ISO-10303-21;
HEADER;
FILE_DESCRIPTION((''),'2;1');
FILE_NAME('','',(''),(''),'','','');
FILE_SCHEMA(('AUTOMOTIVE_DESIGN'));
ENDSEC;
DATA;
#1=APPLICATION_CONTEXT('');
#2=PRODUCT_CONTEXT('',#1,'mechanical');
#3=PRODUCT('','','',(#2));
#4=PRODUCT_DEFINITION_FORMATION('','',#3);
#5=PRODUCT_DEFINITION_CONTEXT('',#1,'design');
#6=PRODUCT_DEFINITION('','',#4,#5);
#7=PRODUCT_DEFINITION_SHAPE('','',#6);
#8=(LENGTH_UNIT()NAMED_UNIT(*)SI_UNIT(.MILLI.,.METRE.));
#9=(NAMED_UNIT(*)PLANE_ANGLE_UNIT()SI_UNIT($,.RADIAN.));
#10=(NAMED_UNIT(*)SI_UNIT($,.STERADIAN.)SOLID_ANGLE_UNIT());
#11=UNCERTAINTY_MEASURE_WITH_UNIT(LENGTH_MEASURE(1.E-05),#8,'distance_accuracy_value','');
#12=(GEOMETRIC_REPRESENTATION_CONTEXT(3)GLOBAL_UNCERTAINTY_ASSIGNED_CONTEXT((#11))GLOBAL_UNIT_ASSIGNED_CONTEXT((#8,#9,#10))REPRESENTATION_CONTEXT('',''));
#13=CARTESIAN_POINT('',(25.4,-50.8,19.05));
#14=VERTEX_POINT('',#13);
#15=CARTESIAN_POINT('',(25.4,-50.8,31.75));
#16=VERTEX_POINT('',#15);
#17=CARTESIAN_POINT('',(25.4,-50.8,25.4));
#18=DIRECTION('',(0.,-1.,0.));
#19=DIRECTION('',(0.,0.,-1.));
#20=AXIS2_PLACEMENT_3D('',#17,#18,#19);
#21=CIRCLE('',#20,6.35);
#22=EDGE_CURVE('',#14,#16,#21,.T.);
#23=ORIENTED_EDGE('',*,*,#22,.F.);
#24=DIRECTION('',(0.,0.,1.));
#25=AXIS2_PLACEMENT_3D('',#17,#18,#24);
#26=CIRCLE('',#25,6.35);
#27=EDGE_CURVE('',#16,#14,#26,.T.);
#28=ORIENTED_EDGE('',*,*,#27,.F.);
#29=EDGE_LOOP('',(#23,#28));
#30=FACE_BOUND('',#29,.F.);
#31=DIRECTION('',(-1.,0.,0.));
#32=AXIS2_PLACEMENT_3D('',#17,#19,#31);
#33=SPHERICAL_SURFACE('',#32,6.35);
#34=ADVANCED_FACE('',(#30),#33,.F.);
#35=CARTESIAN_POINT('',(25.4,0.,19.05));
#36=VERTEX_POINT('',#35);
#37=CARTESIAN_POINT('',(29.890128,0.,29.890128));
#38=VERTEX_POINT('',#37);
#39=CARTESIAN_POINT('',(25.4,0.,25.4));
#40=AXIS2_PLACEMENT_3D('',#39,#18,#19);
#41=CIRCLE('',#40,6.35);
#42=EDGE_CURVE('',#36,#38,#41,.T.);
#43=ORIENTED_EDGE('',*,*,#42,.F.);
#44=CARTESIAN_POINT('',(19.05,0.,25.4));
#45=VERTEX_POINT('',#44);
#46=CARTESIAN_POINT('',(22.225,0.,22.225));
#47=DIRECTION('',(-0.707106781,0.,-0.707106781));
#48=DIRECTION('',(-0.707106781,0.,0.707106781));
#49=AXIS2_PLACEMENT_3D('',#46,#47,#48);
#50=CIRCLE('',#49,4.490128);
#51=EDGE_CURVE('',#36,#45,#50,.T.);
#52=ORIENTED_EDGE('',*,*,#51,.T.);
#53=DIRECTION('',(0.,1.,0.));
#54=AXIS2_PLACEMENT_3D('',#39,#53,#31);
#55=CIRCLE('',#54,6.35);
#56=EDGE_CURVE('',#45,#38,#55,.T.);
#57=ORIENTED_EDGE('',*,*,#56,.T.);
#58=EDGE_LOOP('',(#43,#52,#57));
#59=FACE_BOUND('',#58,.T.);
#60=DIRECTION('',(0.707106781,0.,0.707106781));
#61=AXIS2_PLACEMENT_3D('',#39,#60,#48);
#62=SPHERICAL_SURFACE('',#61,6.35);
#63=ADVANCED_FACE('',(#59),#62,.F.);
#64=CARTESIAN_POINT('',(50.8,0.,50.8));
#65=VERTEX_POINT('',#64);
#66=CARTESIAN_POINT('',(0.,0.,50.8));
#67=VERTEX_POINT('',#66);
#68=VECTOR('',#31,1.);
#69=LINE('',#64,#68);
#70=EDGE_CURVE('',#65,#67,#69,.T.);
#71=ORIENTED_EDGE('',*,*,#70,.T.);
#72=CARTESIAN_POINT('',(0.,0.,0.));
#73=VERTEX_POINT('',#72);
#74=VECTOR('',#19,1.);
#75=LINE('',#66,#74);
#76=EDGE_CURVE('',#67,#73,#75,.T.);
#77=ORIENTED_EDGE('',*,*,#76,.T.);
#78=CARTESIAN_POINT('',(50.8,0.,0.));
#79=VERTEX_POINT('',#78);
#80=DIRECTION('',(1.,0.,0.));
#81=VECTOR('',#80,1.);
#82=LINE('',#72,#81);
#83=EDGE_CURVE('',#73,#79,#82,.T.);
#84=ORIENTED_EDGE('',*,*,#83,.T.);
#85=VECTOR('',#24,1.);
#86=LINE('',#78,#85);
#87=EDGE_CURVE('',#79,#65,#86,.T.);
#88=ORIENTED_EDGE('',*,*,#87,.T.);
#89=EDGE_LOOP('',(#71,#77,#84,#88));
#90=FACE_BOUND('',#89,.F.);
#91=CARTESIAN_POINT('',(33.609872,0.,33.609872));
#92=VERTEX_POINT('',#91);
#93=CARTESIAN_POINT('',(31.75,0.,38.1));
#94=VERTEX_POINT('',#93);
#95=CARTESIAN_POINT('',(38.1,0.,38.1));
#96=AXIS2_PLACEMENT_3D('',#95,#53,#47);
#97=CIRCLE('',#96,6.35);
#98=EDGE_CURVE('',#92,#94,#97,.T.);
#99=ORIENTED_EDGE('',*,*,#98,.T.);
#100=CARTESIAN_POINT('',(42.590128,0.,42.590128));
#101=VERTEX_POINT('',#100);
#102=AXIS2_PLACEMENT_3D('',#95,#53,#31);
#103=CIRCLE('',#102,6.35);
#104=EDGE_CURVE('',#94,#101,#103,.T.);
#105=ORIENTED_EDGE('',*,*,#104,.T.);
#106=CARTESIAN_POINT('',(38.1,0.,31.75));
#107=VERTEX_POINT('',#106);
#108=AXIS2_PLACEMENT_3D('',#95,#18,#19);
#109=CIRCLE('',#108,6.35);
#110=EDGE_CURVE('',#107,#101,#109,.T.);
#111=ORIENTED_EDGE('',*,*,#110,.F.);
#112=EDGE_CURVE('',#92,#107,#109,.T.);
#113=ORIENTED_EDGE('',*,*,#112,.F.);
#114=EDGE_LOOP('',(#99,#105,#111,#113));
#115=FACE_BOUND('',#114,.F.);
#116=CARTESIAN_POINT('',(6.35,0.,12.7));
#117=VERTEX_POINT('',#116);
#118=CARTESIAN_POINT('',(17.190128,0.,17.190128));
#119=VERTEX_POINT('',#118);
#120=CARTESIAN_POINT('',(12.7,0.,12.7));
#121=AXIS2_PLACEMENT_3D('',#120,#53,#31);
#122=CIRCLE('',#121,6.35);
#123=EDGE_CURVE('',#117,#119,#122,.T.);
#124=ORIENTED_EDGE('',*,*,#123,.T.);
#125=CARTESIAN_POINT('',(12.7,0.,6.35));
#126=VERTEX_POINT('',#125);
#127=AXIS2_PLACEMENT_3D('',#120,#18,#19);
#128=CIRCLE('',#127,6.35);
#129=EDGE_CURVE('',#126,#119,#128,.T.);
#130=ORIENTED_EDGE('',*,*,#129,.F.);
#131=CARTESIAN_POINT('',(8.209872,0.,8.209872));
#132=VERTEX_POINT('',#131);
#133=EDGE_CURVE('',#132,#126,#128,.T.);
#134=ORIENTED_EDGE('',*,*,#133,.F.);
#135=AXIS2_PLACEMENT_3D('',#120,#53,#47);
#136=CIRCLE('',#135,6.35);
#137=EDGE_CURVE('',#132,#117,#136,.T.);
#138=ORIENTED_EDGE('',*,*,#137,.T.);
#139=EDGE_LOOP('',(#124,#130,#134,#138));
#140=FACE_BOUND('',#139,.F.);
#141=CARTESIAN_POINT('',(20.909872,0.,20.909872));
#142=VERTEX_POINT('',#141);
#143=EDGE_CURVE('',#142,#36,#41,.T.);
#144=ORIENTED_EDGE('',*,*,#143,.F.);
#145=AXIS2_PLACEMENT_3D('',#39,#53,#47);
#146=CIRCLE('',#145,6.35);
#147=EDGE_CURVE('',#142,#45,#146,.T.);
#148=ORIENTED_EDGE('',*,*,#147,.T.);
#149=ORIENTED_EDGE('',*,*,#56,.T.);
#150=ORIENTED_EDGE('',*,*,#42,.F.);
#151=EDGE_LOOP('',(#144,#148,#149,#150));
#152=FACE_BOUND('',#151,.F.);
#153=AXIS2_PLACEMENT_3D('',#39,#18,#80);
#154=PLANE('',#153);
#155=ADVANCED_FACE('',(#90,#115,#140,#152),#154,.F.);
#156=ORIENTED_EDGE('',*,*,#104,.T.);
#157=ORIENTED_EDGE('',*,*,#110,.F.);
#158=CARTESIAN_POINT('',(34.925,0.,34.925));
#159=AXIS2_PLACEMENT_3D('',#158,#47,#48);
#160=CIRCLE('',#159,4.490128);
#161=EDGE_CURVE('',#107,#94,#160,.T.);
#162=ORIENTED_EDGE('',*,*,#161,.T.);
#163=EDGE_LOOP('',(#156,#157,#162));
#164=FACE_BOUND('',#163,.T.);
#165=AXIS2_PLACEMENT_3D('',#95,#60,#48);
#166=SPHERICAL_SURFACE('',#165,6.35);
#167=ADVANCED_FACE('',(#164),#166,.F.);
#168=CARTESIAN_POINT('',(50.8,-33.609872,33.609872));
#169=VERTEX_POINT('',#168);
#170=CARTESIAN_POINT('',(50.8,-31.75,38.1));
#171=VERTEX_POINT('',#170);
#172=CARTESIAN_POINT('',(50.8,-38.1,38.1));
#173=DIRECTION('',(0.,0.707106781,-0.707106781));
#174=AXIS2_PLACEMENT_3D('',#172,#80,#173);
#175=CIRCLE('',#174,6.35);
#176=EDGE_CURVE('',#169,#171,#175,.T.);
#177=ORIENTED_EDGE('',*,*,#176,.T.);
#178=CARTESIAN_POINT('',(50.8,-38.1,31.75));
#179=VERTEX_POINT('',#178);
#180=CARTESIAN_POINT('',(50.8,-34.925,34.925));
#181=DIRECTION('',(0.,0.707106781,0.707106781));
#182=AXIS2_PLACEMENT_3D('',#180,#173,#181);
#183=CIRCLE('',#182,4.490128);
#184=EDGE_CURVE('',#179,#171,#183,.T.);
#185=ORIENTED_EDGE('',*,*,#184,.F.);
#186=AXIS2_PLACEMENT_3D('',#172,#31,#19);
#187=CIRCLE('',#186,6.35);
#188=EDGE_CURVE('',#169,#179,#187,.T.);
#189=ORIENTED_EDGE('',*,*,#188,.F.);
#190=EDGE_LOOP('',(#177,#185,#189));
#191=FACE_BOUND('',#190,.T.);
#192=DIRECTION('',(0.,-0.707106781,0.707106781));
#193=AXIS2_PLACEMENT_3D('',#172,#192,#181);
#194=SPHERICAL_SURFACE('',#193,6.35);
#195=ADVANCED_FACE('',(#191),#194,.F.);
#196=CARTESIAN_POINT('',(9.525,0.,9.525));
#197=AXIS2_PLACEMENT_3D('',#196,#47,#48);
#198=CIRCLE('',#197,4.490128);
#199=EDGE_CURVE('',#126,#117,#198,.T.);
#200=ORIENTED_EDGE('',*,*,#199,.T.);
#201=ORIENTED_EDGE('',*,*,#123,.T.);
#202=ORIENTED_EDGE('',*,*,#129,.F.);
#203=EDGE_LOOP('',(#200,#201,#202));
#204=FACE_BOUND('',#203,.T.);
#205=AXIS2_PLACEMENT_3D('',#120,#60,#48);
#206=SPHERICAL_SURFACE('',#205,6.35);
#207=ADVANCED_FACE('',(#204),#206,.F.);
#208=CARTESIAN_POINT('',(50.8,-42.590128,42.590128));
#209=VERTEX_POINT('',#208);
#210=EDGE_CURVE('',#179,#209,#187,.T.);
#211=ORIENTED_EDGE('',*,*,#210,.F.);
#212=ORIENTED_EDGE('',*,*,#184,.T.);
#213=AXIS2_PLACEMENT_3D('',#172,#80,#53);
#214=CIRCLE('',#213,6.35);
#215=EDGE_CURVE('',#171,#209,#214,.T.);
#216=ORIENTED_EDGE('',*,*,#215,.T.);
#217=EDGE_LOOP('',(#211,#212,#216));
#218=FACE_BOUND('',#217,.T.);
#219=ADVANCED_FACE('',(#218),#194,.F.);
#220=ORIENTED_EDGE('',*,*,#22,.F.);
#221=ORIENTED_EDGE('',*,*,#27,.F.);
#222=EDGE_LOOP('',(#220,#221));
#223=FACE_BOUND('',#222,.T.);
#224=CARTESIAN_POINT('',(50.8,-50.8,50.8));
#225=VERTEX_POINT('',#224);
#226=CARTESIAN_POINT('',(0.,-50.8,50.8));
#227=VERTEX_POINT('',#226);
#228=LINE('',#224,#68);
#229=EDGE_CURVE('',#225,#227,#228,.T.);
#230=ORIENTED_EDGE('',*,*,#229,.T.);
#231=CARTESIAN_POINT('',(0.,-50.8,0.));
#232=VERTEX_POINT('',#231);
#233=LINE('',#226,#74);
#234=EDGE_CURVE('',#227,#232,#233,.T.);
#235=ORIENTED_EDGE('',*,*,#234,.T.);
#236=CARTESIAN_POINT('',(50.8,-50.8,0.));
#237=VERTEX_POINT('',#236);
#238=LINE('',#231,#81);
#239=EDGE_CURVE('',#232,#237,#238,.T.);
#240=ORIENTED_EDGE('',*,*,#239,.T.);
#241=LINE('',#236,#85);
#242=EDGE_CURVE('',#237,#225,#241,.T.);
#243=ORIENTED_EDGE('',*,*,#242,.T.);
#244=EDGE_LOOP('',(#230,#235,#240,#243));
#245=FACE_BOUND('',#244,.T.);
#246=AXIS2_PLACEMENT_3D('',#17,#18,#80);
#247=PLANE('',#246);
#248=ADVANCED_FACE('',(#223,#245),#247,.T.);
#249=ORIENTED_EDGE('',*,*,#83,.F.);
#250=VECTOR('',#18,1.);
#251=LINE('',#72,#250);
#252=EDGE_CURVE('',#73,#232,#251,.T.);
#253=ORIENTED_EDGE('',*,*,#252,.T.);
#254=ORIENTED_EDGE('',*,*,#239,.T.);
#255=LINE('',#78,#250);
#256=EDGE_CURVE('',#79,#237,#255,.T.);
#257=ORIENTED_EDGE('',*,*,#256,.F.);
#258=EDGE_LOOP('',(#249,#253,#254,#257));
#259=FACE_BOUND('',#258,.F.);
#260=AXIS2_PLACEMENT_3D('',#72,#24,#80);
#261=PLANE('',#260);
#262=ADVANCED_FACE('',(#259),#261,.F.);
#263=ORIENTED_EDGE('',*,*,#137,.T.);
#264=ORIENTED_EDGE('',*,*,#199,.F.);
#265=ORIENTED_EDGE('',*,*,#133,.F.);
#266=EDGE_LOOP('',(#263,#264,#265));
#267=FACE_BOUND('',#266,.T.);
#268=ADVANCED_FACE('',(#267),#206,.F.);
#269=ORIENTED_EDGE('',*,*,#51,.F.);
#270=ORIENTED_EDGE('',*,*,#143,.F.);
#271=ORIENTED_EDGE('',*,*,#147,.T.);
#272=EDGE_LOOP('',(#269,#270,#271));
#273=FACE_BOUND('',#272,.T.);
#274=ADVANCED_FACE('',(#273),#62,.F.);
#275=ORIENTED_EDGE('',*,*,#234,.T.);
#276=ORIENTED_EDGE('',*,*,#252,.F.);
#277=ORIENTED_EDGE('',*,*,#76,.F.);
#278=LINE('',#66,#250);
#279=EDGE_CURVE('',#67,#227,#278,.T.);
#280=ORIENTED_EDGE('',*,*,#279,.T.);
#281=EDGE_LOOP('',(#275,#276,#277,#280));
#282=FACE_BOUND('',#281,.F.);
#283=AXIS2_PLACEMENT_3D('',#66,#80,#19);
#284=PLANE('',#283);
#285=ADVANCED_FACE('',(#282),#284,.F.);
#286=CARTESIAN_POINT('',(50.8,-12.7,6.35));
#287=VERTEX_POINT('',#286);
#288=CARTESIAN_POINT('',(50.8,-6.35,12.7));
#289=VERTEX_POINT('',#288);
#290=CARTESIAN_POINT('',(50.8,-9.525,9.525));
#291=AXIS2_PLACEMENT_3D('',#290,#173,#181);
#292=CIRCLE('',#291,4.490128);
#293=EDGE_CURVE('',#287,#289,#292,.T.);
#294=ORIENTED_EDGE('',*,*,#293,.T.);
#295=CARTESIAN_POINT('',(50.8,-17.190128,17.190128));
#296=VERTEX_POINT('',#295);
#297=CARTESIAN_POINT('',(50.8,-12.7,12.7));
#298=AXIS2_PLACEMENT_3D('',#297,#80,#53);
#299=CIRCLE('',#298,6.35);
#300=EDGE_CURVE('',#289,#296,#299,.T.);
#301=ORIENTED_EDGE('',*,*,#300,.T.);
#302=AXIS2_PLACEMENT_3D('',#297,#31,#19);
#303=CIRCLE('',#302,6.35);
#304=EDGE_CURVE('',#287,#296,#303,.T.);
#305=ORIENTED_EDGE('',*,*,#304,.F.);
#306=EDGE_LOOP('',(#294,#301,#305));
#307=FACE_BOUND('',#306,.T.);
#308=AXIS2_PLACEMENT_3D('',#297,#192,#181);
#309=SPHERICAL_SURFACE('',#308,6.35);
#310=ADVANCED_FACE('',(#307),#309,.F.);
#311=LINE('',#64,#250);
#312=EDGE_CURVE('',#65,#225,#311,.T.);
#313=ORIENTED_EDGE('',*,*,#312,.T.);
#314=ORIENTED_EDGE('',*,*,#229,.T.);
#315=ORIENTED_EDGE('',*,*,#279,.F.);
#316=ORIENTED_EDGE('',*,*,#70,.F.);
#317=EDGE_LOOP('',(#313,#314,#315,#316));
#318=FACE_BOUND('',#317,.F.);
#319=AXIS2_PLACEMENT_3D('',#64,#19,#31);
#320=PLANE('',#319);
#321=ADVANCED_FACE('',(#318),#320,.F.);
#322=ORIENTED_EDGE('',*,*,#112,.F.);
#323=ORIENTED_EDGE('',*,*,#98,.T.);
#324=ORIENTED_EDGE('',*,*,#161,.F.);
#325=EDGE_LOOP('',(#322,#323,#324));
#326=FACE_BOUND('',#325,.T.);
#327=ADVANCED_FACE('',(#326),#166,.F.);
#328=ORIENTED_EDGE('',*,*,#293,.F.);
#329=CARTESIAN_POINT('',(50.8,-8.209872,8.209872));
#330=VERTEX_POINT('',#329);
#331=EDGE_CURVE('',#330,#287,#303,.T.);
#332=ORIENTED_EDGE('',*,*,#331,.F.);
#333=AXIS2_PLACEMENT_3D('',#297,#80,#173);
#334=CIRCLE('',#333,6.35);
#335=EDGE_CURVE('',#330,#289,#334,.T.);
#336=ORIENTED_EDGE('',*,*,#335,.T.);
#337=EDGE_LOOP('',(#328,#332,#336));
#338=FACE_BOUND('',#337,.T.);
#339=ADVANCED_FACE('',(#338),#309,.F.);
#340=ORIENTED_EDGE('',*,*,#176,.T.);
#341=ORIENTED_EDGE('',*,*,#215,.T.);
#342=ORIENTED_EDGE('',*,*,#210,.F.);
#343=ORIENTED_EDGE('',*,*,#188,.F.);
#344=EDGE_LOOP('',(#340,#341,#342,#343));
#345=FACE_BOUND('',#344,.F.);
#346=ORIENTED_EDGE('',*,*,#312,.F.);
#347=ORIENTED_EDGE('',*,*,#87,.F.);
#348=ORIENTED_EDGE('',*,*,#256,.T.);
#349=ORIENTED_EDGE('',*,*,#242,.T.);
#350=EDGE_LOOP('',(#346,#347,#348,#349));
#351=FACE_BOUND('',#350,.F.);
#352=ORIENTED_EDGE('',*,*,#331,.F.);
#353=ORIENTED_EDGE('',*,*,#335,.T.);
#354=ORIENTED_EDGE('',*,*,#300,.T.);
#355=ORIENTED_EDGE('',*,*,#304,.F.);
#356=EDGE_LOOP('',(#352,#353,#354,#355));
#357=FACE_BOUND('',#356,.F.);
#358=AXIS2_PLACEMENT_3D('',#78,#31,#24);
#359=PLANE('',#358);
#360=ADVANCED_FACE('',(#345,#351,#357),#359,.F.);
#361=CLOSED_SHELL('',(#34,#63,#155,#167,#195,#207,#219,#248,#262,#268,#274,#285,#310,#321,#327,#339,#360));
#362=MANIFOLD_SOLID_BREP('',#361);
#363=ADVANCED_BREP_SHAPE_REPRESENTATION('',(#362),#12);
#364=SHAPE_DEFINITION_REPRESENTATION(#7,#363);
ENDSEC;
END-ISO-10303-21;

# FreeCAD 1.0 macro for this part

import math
import FreeCAD as App
import Part
import Sketcher
from FreeCAD import Vector
Q = App.Units.Quantity


def add_polygon(sketch, points):
    """Adds a closed chain of lines whose ends are joined by coincident constraints."""
    first, n = sketch.GeometryCount, len(points)
    for a, b in zip(points, points[1:] + points[:1]):
        sketch.addGeometry(Part.LineSegment(App.Vector(*a, 0), App.Vector(*b, 0)), False)
    for i in range(n):
        sketch.addConstraint(Sketcher.Constraint("Coincident", first + i, 2, first + (i + 1) % n, 1))

doc = App.newDocument("Part")
body = doc.addObject("PartDesign::Body", "Body")

# Sketch on XZ plane
sketch1 = body.newObject("Sketcher::SketchObject", "Sketch")
sketch1.AttachmentSupport = (doc.getObject("XZ_Plane"), [""])
sketch1.MapMode = "FlatFace"
add_polygon(sketch1, [(0, 50.8), (0, 0), (50.8, 0), (50.8, 50.8)])  # lines 0-3
sketch1.addConstraint(Sketcher.Constraint("Vertical", 0))
sketch1.addConstraint(Sketcher.Constraint("Horizontal", 1))
sketch1.addConstraint(Sketcher.Constraint("Vertical", 2))
sketch1.addConstraint(Sketcher.Constraint("Horizontal", 3))
sketch1.addConstraint(Sketcher.Constraint("Coincident", 0, 2, -1, 1))
sketch1.addConstraint(Sketcher.Constraint("Equal", 3, 0))
sketch1.addConstraint(Sketcher.Constraint("DistanceX", 1, 1, 1, 2, Q("2 in")))
pad1 = body.newObject("PartDesign::Pad", "Pad")
pad1.Profile = sketch1
pad1.Length = Q("2 in")

# Sketch on YZ plane
sketch2 = body.newObject("Sketcher::SketchObject", "Sketch001")
sketch2.AttachmentSupport = (doc.getObject("YZ_Plane"), [""])
sketch2.MapMode = "FlatFace"
sketch2.AttachmentOffset = App.Placement(Vector(0, 0, 2 * 25.4), App.Rotation())
sketch2.addGeometry(Part.ArcOfCircle(Part.Circle(Vector(-38.1, 38.1, 0), Vector(0, 0, 1), 6.35), math.radians(0), math.radians(135)), False)
sketch2.addGeometry(Part.LineSegment(Vector(-42.590128, 42.590128, 0), Vector(-33.609872, 33.609872, 0)), False)
sketch2.addGeometry(Part.ArcOfCircle(Part.Circle(Vector(-38.1, 38.1, 0), Vector(0, 0, 1), 6.35), math.radians(-45), math.radians(0)), False)
sketch2.addGeometry(Part.ArcOfCircle(Part.Circle(Vector(-12.7, 12.7, 0), Vector(0, 0, 1), 6.35), math.radians(0), math.radians(135)), False)
sketch2.addGeometry(Part.LineSegment(Vector(-17.190128, 17.190128, 0), Vector(-8.209872, 8.209872, 0)), False)
sketch2.addGeometry(Part.ArcOfCircle(Part.Circle(Vector(-12.7, 12.7, 0), Vector(0, 0, 1), 6.35), math.radians(-45), math.radians(0)), False)
sketch2.addGeometry(Part.LineSegment(Vector(-42.590128, 42.590128, 0), Vector(-8.209872, 8.209872, 0)), True)  # axis
sketch2.addConstraint(Sketcher.Constraint("Coincident", 0, 2, 1, 1))
sketch2.addConstraint(Sketcher.Constraint("Coincident", 1, 2, 2, 1))
sketch2.addConstraint(Sketcher.Constraint("Tangent", 2, 2, 0, 1))
sketch2.addConstraint(Sketcher.Constraint("Coincident", 3, 2, 4, 1))
sketch2.addConstraint(Sketcher.Constraint("Coincident", 4, 2, 5, 1))
sketch2.addConstraint(Sketcher.Constraint("Tangent", 5, 2, 3, 1))
sketch2.addConstraint(Sketcher.Constraint("Coincident", 6, 1, 0, 2))
sketch2.addConstraint(Sketcher.Constraint("Coincident", 6, 2, 4, 2))
sketch2.addConstraint(Sketcher.Constraint("Equal", 0, 2))
sketch2.addConstraint(Sketcher.Constraint("Equal", 2, 3))
sketch2.addConstraint(Sketcher.Constraint("Equal", 3, 5))
sketch2.addConstraint(Sketcher.Constraint("Parallel", 1, 4))
sketch2.addConstraint(Sketcher.Constraint("Parallel", 4, 6))
sketch2.addConstraint(Sketcher.Constraint("Horizontal", 0, 3, 2, 2))
sketch2.addConstraint(Sketcher.Constraint("Horizontal", 3, 3, 5, 2))
sketch2.addConstraint(Sketcher.Constraint("Radius", 0, Q("0.25 in")))
sketch2.addConstraint(Sketcher.Constraint("Angle", 1, Q("-45 deg")))
sketch2.addConstraint(Sketcher.Constraint("DistanceX", 0, 3, 3, 3, Q("1 in")))
sketch2.addConstraint(Sketcher.Constraint("DistanceY", 3, 3, 0, 3, Q("1 in")))
sketch2.addConstraint(Sketcher.Constraint("DistanceX", 0, 3, -1, 1, Q("1.5 in")))
sketch2.addConstraint(Sketcher.Constraint("DistanceY", -1, 1, 0, 3, Q("1.5 in")))
sketch2.addConstraint(Sketcher.Constraint("DistanceX", 0, 2, -1, 1, Q("42.590128 mm")))
groove = body.newObject("PartDesign::Groove", "Groove")
groove.Profile = sketch2
groove.ReferenceAxis = (sketch2, ["Axis0"])
groove.Angle = 360

# Sketch on XZ plane
sketch3 = body.newObject("Sketcher::SketchObject", "Sketch002")
sketch3.AttachmentSupport = (doc.getObject("XZ_Plane"), [""])
sketch3.MapMode = "FlatFace"
sketch3.AttachmentOffset = App.Placement(Vector(0, 0, 2 * 25.4), App.Rotation())
sketch3.addGeometry(Part.LineSegment(Vector(25.4, 19.05, 0), Vector(25.4, 31.75, 0)), False)
sketch3.addGeometry(Part.ArcOfCircle(Part.Circle(Vector(25.4, 25.4, 0), Vector(0, 0, 1), 6.35), math.radians(90), math.radians(270)), False)
sketch3.addGeometry(Part.LineSegment(Vector(25.4, 31.75, 0), Vector(25.4, 19.05, 0)), True)  # axis
sketch3.addConstraint(Sketcher.Constraint("Coincident", 0, 1, 1, 2))
sketch3.addConstraint(Sketcher.Constraint("Coincident", 1, 1, 0, 2))
sketch3.addConstraint(Sketcher.Constraint("Vertical", 0))
sketch3.addConstraint(Sketcher.Constraint("Vertical", 2))
sketch3.addConstraint(Sketcher.Constraint("Coincident", 2, 1, 1, 1))
sketch3.addConstraint(Sketcher.Constraint("Vertical", 1, 3, 0, 1))
sketch3.addConstraint(Sketcher.Constraint("Equal", 0, 2))
sketch3.addConstraint(Sketcher.Constraint("Radius", 1, Q("0.25 in")))
sketch3.addConstraint(Sketcher.Constraint("DistanceX", -1, 1, 1, 3, Q("1 in")))
sketch3.addConstraint(Sketcher.Constraint("DistanceY", -1, 1, 1, 3, Q("1 in")))
groove2 = body.newObject("PartDesign::Groove", "Groove001")
groove2.Profile = sketch3
groove2.ReferenceAxis = (sketch3, ["Axis0"])
groove2.Angle = 360

# Sketch on XZ plane
sketch4 = body.newObject("Sketcher::SketchObject", "Sketch003")
sketch4.AttachmentSupport = (doc.getObject("XZ_Plane"), [""])
sketch4.MapMode = "FlatFace"
sketch4.addGeometry(Part.LineSegment(Vector(17.190128, 17.190128, 0), Vector(8.209872, 8.209872, 0)), False)
sketch4.addGeometry(Part.ArcOfCircle(Part.Circle(Vector(12.7, 12.7, 0), Vector(0, 0, 1), 6.35), math.radians(180), math.radians(225)), False)
sketch4.addGeometry(Part.ArcOfCircle(Part.Circle(Vector(12.7, 12.7, 0), Vector(0, 0, 1), 6.35), math.radians(45), math.radians(180)), False)
sketch4.addGeometry(Part.ArcOfCircle(Part.Circle(Vector(25.4, 25.4, 0), Vector(0, 0, 1), 6.35), math.radians(45), math.radians(180)), False)
sketch4.addGeometry(Part.LineSegment(Vector(29.890128, 29.890128, 0), Vector(20.909872, 20.909872, 0)), False)
sketch4.addGeometry(Part.ArcOfCircle(Part.Circle(Vector(25.4, 25.4, 0), Vector(0, 0, 1), 6.35), math.radians(180), math.radians(225)), False)
sketch4.addGeometry(Part.ArcOfCircle(Part.Circle(Vector(38.1, 38.1, 0), Vector(0, 0, 1), 6.35), math.radians(45), math.radians(180)), False)
sketch4.addGeometry(Part.LineSegment(Vector(42.590128, 42.590128, 0), Vector(33.609872, 33.609872, 0)), False)
sketch4.addGeometry(Part.ArcOfCircle(Part.Circle(Vector(38.1, 38.1, 0), Vector(0, 0, 1), 6.35), math.radians(180), math.radians(225)), False)
sketch4.addGeometry(Part.LineSegment(Vector(42.590128, 42.590128, 0), Vector(8.209872, 8.209872, 0)), True)  # axis
sketch4.addConstraint(Sketcher.Constraint("Coincident", 0, 2, 1, 2))
sketch4.addConstraint(Sketcher.Constraint("Tangent", 1, 1, 2, 2))
sketch4.addConstraint(Sketcher.Constraint("Coincident", 2, 1, 0, 1))
sketch4.addConstraint(Sketcher.Constraint("Coincident", 3, 1, 4, 1))
sketch4.addConstraint(Sketcher.Constraint("Coincident", 4, 2, 5, 2))
sketch4.addConstraint(Sketcher.Constraint("Tangent", 5, 1, 3, 2))
sketch4.addConstraint(Sketcher.Constraint("Coincident", 6, 1, 7, 1))
sketch4.addConstraint(Sketcher.Constraint("Coincident", 7, 2, 8, 2))
sketch4.addConstraint(Sketcher.Constraint("Tangent", 8, 1, 6, 2))
sketch4.addConstraint(Sketcher.Constraint("Coincident", 9, 1, 6, 1))
sketch4.addConstraint(Sketcher.Constraint("Coincident", 9, 2, 0, 2))
sketch4.addConstraint(Sketcher.Constraint("Equal", 1, 2))
sketch4.addConstraint(Sketcher.Constraint("Equal", 2, 3))
sketch4.addConstraint(Sketcher.Constraint("Equal", 3, 5))
sketch4.addConstraint(Sketcher.Constraint("Equal", 5, 6))
sketch4.addConstraint(Sketcher.Constraint("Equal", 6, 8))
sketch4.addConstraint(Sketcher.Constraint("Parallel", 0, 4))
sketch4.addConstraint(Sketcher.Constraint("Parallel", 4, 7))
sketch4.addConstraint(Sketcher.Constraint("Parallel", 7, 9))
sketch4.addConstraint(Sketcher.Constraint("Horizontal", 2, 3, 1, 1))
sketch4.addConstraint(Sketcher.Constraint("Horizontal", 3, 3, 5, 1))
sketch4.addConstraint(Sketcher.Constraint("Horizontal", 6, 3, 8, 1))
sketch4.addConstraint(Sketcher.Constraint("Radius", 1, Q("0.25 in")))
sketch4.addConstraint(Sketcher.Constraint("DistanceX", -1, 1, 3, 3, Q("1 in")))
sketch4.addConstraint(Sketcher.Constraint("DistanceY", -1, 1, 3, 3, Q("1 in")))
sketch4.addConstraint(Sketcher.Constraint("Angle", 0, Q("-135 deg")))
sketch4.addConstraint(Sketcher.Constraint("DistanceX", 1, 3, 6, 3, Q("1 in")))
sketch4.addConstraint(Sketcher.Constraint("DistanceY", 1, 3, 6, 3, Q("1 in")))
sketch4.addConstraint(Sketcher.Constraint("DistanceX", -1, 1, 1, 3, Q("0.5 in")))
sketch4.addConstraint(Sketcher.Constraint("DistanceY", -1, 1, 1, 3, Q("0.5 in")))
sketch4.addConstraint(Sketcher.Constraint("DistanceX", 2, 1, 3, 1, Q("0.5 in")))
sketch4.addConstraint(Sketcher.Constraint("DistanceX", -1, 1, 0, 2, Q("8.209872 mm")))
groove3 = body.newObject("PartDesign::Groove", "Groove002")
groove3.Profile = sketch4
groove3.ReferenceAxis = (sketch4, ["Axis0"])
groove3.Angle = 360

doc.recompute()
